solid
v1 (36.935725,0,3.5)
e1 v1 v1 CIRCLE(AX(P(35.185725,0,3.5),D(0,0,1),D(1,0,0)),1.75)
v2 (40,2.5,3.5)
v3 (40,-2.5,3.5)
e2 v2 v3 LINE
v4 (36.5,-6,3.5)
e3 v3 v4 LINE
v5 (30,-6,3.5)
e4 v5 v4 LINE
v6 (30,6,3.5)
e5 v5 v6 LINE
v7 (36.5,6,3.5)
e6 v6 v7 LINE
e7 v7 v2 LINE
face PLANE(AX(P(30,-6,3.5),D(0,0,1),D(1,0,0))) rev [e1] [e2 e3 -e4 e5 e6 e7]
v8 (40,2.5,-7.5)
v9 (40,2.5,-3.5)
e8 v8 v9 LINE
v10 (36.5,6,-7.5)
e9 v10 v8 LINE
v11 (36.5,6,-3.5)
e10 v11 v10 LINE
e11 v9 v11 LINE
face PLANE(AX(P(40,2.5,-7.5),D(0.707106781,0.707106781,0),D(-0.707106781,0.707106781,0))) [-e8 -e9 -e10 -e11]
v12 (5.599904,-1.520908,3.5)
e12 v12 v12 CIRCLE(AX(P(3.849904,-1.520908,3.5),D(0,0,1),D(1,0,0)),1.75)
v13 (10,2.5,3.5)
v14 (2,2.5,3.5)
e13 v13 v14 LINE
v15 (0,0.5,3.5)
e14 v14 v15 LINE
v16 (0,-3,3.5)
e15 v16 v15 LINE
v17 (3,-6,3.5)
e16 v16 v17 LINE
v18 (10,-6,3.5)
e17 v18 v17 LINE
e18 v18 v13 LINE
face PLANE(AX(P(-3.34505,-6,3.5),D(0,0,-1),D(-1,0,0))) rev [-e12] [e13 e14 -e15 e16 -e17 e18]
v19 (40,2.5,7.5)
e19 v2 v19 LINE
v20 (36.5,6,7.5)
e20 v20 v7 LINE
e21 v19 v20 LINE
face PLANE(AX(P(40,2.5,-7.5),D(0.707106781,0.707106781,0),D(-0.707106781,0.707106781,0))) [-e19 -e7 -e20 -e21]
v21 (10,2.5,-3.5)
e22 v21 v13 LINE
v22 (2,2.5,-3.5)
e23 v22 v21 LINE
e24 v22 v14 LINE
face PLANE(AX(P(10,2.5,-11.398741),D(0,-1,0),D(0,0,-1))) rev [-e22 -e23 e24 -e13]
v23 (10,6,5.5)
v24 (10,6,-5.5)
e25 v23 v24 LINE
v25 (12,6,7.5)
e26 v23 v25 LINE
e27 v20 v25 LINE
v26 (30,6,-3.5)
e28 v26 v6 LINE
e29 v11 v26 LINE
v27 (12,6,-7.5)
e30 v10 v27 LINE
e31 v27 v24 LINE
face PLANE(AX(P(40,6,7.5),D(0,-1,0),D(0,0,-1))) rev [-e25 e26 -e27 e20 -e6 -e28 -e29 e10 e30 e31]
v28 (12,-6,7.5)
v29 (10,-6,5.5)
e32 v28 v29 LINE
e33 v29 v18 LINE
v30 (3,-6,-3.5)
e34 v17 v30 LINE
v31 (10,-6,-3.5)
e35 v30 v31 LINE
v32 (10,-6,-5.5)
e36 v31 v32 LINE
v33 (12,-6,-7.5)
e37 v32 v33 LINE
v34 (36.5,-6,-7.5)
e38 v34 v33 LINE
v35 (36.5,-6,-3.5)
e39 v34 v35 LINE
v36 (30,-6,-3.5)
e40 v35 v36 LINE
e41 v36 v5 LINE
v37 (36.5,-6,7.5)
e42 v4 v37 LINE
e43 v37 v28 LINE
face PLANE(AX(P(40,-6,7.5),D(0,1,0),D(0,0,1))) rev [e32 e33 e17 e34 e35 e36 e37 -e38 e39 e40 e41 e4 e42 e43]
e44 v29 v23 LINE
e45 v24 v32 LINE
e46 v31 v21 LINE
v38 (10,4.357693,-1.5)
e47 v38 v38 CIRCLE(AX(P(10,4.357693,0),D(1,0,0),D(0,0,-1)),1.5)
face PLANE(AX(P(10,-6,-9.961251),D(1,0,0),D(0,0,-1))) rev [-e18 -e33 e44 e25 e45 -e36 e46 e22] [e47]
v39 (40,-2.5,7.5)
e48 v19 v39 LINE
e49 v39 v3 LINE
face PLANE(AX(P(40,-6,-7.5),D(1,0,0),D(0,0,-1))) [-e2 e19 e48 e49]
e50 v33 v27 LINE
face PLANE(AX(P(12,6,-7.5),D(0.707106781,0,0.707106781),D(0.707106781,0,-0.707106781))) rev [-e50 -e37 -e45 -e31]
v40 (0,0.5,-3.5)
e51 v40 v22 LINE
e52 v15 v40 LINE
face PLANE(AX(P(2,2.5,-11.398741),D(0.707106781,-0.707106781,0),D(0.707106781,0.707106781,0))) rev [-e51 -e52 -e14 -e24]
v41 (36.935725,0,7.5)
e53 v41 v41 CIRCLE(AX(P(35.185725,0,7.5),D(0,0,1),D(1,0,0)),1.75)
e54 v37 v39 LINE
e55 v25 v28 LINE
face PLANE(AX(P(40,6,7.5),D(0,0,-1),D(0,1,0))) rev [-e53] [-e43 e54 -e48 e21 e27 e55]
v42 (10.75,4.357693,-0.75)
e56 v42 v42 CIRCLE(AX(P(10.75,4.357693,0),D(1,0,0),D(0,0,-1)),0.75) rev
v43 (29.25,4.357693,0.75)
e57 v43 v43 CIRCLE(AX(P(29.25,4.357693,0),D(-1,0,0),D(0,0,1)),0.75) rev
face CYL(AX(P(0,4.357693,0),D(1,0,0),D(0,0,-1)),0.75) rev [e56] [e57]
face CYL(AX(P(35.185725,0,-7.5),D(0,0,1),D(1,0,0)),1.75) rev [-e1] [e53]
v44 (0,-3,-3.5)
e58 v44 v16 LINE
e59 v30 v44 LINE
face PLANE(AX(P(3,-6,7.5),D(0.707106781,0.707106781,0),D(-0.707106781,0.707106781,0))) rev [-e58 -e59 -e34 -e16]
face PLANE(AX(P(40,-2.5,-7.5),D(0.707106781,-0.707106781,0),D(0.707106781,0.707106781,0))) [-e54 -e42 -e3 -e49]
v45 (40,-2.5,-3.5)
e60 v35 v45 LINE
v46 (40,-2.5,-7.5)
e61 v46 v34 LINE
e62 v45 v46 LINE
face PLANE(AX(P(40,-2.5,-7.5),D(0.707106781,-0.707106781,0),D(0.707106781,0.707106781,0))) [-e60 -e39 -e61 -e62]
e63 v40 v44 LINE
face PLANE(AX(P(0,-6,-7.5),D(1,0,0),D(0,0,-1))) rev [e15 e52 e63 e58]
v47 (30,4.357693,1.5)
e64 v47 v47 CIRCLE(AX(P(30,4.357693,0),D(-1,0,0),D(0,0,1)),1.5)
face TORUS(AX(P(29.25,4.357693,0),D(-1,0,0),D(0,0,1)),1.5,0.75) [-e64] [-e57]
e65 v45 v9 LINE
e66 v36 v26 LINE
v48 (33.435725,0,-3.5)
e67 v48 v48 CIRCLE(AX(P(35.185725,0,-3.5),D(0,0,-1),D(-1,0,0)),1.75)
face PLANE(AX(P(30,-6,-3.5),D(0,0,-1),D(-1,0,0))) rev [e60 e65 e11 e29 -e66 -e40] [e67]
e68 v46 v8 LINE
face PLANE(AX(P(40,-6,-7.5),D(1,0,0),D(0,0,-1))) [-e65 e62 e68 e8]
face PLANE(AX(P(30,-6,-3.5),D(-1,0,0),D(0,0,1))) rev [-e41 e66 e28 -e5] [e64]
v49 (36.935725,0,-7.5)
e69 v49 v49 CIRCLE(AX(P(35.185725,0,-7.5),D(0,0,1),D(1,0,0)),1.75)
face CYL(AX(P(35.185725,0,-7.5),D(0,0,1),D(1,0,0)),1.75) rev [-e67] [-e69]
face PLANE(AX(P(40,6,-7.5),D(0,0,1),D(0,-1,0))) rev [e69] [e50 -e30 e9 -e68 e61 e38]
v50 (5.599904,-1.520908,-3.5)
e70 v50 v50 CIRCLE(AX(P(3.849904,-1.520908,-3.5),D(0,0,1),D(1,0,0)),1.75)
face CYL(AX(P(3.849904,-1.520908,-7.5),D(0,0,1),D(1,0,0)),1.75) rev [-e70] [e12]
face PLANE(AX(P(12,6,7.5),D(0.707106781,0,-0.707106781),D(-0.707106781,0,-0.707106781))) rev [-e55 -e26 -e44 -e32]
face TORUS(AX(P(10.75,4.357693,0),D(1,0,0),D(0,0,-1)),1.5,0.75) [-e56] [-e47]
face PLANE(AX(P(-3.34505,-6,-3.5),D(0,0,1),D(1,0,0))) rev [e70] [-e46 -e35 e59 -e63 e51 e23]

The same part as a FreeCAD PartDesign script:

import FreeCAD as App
import Part
import Sketcher


def edges_at(feature, points):
    """Names of the edges that pass closest to the given points."""
    edges = feature.Shape.Edges
    near = lambda p: min(range(len(edges)), key=lambda i: edges[i].distToShape(Part.Vertex(*p))[0])
    return sorted({f"Edge{near(p) + 1}" for p in points})

doc = App.newDocument("Part")
body = doc.addObject("PartDesign::Body", "Body")

sketch1 = body.newObject("Sketcher::SketchObject", "Sketch")
sketch1.AttachmentSupport = (doc.getObject("YZ_Plane"), [""])
sketch1.MapMode = "FlatFace"
sketch1.addGeometry([
    Part.LineSegment(App.Vector(6, 8, 0), App.Vector(-6, 8, 0)),
    Part.LineSegment(App.Vector(-6, 8, 0), App.Vector(-6, -8, 0)),
    Part.LineSegment(App.Vector(-6, -8, 0), App.Vector(6, -8, 0)),
    Part.LineSegment(App.Vector(6, -8, 0), App.Vector(6, 8, 0)),
], False)
sketch1.addConstraint([
    Sketcher.Constraint("Coincident", 0, 2, 1, 1),
    Sketcher.Constraint("Coincident", 1, 2, 2, 1),
    Sketcher.Constraint("Coincident", 2, 2, 3, 1),
    Sketcher.Constraint("Coincident", 3, 2, 0, 1),
    Sketcher.Constraint("Horizontal", 0),
    Sketcher.Constraint("Vertical", 1),
    Sketcher.Constraint("Horizontal", 2),
    Sketcher.Constraint("Vertical", 3),
    Sketcher.Constraint("Symmetric", 0, 2, 2, 2, -1, 1),
    Sketcher.Constraint("DistanceX", 0, 2, 0, 1, 12.0),
    Sketcher.Constraint("DistanceY", 1, 2, 1, 1, 15.0),
])
pad1 = body.newObject("PartDesign::Pad", "Pad")
pad1.Profile = sketch1
pad1.Length = 40

sketch2 = body.newObject("Sketcher::SketchObject", "Sketch001")
sketch2.AttachmentSupport = (doc.getObject("XZ_Plane"), [""])
sketch2.MapMode = "FlatFace"
sketch2.AttachmentOffset = App.Placement(App.Vector(0, 0, -6), App.Rotation())
sketch2.addGeometry([
    Part.LineSegment(App.Vector(-3, 3, 0), App.Vector(-3, 10, 0)),
    Part.LineSegment(App.Vector(-3, 10, 0), App.Vector(10, 10, 0)),
    Part.LineSegment(App.Vector(10, 10, 0), App.Vector(10, 3, 0)),
    Part.LineSegment(App.Vector(10, 3, 0), App.Vector(-3, 3, 0)),
    Part.LineSegment(App.Vector(-3, -10, 0), App.Vector(-3, -3, 0)),
    Part.LineSegment(App.Vector(-3, -3, 0), App.Vector(10, -3, 0)),
    Part.LineSegment(App.Vector(10, -3, 0), App.Vector(10, -10, 0)),
    Part.LineSegment(App.Vector(10, -10, 0), App.Vector(-3, -10, 0)),
], False)
sketch2.addConstraint([
    Sketcher.Constraint("Coincident", 0, 2, 1, 1),
    Sketcher.Constraint("Coincident", 1, 2, 2, 1),
    Sketcher.Constraint("Coincident", 2, 2, 3, 1),
    Sketcher.Constraint("Coincident", 3, 2, 0, 1),
    Sketcher.Constraint("Coincident", 4, 2, 5, 1),
    Sketcher.Constraint("Coincident", 5, 2, 6, 1),
    Sketcher.Constraint("Coincident", 6, 2, 7, 1),
    Sketcher.Constraint("Coincident", 7, 2, 4, 1),
    Sketcher.Constraint("Vertical", 0),
    Sketcher.Constraint("Horizontal", 1),
    Sketcher.Constraint("Vertical", 2),
    Sketcher.Constraint("Horizontal", 3),
    Sketcher.Constraint("Vertical", 4),
    Sketcher.Constraint("Horizontal", 5),
    Sketcher.Constraint("Vertical", 6),
    Sketcher.Constraint("Horizontal", 7),
    Sketcher.Constraint("Symmetric", 3, 2, 4, 2, -1),
    Sketcher.Constraint("Symmetric", 1, 2, 6, 2, -1),
    Sketcher.Constraint("DistanceX", -1, 1, 1, 2, 10.0),
    Sketcher.Constraint("DistanceY", 4, 2, 3, 2, 7.0),
    Sketcher.Constraint("DistanceX", 1, 1, 1, 2, 13.34505),
    Sketcher.Constraint("DistanceY", 0, 1, 0, 2, 6.461251),
])
pocket1 = body.newObject("PartDesign::Pocket", "Pocket")
pocket1.Profile = sketch2
pocket1.Type = "ThroughAll"
pocket1.Reversed = True

sketch3 = body.newObject("Sketcher::SketchObject", "Sketch002")
sketch3.AttachmentSupport = (doc.getObject("XY_Plane"), [""])
sketch3.MapMode = "FlatFace"
sketch3.AttachmentOffset = App.Placement(App.Vector(0, 0, 3.5), App.Rotation())
sketch3.addGeometry(Part.Circle(App.Vector(3.8, -1.5, 0), App.Vector(0, 0, 1), 1.8), False)
sketch3.addConstraint([
    Sketcher.Constraint("Diameter", 0, 3.5),
    Sketcher.Constraint("DistanceX", -1, 1, 0, 3, 3.849904),
    Sketcher.Constraint("DistanceY", 0, 3, -1, 1, 1.520908),
])
pocket2 = body.newObject("PartDesign::Pocket", "Pocket001")
pocket2.Profile = sketch3
pocket2.Type = "ThroughAll"

sketch4 = body.newObject("Sketcher::SketchObject", "Sketch003")
sketch4.AttachmentSupport = (doc.getObject("XZ_Plane"), [""])
sketch4.MapMode = "FlatFace"
sketch4.AttachmentOffset = App.Placement(App.Vector(0, 0, -6), App.Rotation())
sketch4.addGeometry([
    Part.LineSegment(App.Vector(30, -4, 0), App.Vector(30, 4, 0)),
    Part.LineSegment(App.Vector(30, 4, 0), App.Vector(45, 4, 0)),
    Part.LineSegment(App.Vector(45, 4, 0), App.Vector(45, -4, 0)),
    Part.LineSegment(App.Vector(45, -4, 0), App.Vector(30, -4, 0)),
], False)
sketch4.addConstraint([
    Sketcher.Constraint("Coincident", 0, 2, 1, 1),
    Sketcher.Constraint("Coincident", 1, 2, 2, 1),
    Sketcher.Constraint("Coincident", 2, 2, 3, 1),
    Sketcher.Constraint("Coincident", 3, 2, 0, 1),
    Sketcher.Constraint("Vertical", 0),
    Sketcher.Constraint("Horizontal", 1),
    Sketcher.Constraint("Vertical", 2),
    Sketcher.Constraint("Horizontal", 3),
    Sketcher.Constraint("DistanceY", 0, 1, 0, 2, 7.0),
    Sketcher.Constraint("DistanceX", -1, 1, 0, 2, 30.0),
    Sketcher.Constraint("DistanceY", -1, 1, 0, 2, 3.5),
    Sketcher.Constraint("DistanceX", 1, 1, 1, 2, 15.367688),
])
pocket3 = body.newObject("PartDesign::Pocket", "Pocket002")
pocket3.Profile = sketch4
pocket3.Type = "ThroughAll"
pocket3.Reversed = True
doc.recompute()

chamfer = body.newObject("PartDesign::Chamfer", "Chamfer")
chamfer.Base = (pocket3, edges_at(pocket3, [
    (40, -6, 5.5),
    (40, 6, 5.5),
    (40, -6, -5.5),
    (40, 6, -5.5),
]))
chamfer.Size = 3.5

sketch5 = body.newObject("Sketcher::SketchObject", "Sketch004")
sketch5.AttachmentSupport = (doc.getObject("YZ_Plane"), [""])
sketch5.MapMode = "FlatFace"
sketch5.AttachmentOffset = App.Placement(App.Vector(0, 0, 30), App.Rotation())
sketch5.addGeometry(Part.Circle(App.Vector(4.4, 0, 0), App.Vector(0, 0, 1), 0.8), False)
sketch5.addConstraint([
    Sketcher.Constraint("PointOnObject", 0, 3, -1),
    Sketcher.Constraint("Diameter", 0, 1.5),
    Sketcher.Constraint("DistanceX", -1, 1, 0, 3, 4.357693),
])
pocket4 = body.newObject("PartDesign::Pocket", "Pocket003")
pocket4.Profile = sketch5
pocket4.Type = "ThroughAll"
doc.recompute()

chamfer2 = body.newObject("PartDesign::Chamfer", "Chamfer001")
chamfer2.Base = (pocket4, edges_at(pocket4, [(0, -6, 0)]))
chamfer2.Size = 3

sketch6 = body.newObject("Sketcher::SketchObject", "Sketch005")
sketch6.AttachmentSupport = (doc.getObject("YZ_Plane"), [""])
sketch6.MapMode = "FlatFace"
sketch6.addGeometry([
    Part.LineSegment(App.Vector(6.4, -11.4, 0), App.Vector(2.5, -11.4, 0)),
    Part.LineSegment(App.Vector(2.5, -11.4, 0), App.Vector(2.5, 9.5, 0)),
    Part.LineSegment(App.Vector(2.5, 9.5, 0), App.Vector(6.4, 9.5, 0)),
    Part.LineSegment(App.Vector(6.4, 9.5, 0), App.Vector(6.4, -11.4, 0)),
], False)
sketch6.addConstraint([
    Sketcher.Constraint("Coincident", 0, 2, 1, 1),
    Sketcher.Constraint("Coincident", 1, 2, 2, 1),
    Sketcher.Constraint("Coincident", 2, 2, 3, 1),
    Sketcher.Constraint("Coincident", 3, 2, 0, 1),
    Sketcher.Constraint("Horizontal", 0),
    Sketcher.Constraint("Vertical", 1),
    Sketcher.Constraint("Horizontal", 2),
    Sketcher.Constraint("Vertical", 3),
    Sketcher.Constraint("DistanceX", -1, 1, 0, 2, 2.5),
    Sketcher.Constraint("DistanceX", 0, 2, 0, 1, 3.864212),
    Sketcher.Constraint("DistanceY", 1, 1, 1, 2, 20.918678),
    Sketcher.Constraint("DistanceY", 0, 2, -1, 1, 11.398741),
])
pocket5 = body.newObject("PartDesign::Pocket", "Pocket004")
pocket5.Profile = sketch6
pocket5.Length = 10
pocket5.Reversed = True
doc.recompute()

chamfer3 = body.newObject("PartDesign::Chamfer", "Chamfer002")
chamfer3.Base = (pocket5, edges_at(pocket5, [(0, 2.5, 0)]))
chamfer3.Size = 2

sketch7 = body.newObject("Sketcher::SketchObject", "Sketch006")
sketch7.AttachmentSupport = (doc.getObject("XY_Plane"), [""])
sketch7.MapMode = "FlatFace"
sketch7.AttachmentOffset = App.Placement(App.Vector(0, 0, 7.5), App.Rotation())
sketch7.addGeometry(Part.Circle(App.Vector(35.2, 0, 0), App.Vector(0, 0, 1), 1.8), False)
sketch7.addConstraint([
    Sketcher.Constraint("PointOnObject", 0, 3, -1),
    Sketcher.Constraint("Diameter", 0, 3.5),
    Sketcher.Constraint("DistanceX", -1, 1, 0, 3, 35.185725),
])
pocket6 = body.newObject("PartDesign::Pocket", "Pocket005")
pocket6.Profile = sketch7
pocket6.Type = "ThroughAll"
doc.recompute()

fillet = body.newObject("PartDesign::Fillet", "Fillet")
fillet.Base = (pocket6, edges_at(pocket6, [(30, 4.358, 0.75), (10, 4.358, 0.75)]))
fillet.Radius = 0.75
doc.recompute()

chamfer4 = body.newObject("PartDesign::Chamfer", "Chamfer003")
chamfer4.Base = (fillet, edges_at(fillet, [(10, 0, -7.5), (10, 0, 7.5)]))
chamfer4.Size = 2

doc.recompute()
